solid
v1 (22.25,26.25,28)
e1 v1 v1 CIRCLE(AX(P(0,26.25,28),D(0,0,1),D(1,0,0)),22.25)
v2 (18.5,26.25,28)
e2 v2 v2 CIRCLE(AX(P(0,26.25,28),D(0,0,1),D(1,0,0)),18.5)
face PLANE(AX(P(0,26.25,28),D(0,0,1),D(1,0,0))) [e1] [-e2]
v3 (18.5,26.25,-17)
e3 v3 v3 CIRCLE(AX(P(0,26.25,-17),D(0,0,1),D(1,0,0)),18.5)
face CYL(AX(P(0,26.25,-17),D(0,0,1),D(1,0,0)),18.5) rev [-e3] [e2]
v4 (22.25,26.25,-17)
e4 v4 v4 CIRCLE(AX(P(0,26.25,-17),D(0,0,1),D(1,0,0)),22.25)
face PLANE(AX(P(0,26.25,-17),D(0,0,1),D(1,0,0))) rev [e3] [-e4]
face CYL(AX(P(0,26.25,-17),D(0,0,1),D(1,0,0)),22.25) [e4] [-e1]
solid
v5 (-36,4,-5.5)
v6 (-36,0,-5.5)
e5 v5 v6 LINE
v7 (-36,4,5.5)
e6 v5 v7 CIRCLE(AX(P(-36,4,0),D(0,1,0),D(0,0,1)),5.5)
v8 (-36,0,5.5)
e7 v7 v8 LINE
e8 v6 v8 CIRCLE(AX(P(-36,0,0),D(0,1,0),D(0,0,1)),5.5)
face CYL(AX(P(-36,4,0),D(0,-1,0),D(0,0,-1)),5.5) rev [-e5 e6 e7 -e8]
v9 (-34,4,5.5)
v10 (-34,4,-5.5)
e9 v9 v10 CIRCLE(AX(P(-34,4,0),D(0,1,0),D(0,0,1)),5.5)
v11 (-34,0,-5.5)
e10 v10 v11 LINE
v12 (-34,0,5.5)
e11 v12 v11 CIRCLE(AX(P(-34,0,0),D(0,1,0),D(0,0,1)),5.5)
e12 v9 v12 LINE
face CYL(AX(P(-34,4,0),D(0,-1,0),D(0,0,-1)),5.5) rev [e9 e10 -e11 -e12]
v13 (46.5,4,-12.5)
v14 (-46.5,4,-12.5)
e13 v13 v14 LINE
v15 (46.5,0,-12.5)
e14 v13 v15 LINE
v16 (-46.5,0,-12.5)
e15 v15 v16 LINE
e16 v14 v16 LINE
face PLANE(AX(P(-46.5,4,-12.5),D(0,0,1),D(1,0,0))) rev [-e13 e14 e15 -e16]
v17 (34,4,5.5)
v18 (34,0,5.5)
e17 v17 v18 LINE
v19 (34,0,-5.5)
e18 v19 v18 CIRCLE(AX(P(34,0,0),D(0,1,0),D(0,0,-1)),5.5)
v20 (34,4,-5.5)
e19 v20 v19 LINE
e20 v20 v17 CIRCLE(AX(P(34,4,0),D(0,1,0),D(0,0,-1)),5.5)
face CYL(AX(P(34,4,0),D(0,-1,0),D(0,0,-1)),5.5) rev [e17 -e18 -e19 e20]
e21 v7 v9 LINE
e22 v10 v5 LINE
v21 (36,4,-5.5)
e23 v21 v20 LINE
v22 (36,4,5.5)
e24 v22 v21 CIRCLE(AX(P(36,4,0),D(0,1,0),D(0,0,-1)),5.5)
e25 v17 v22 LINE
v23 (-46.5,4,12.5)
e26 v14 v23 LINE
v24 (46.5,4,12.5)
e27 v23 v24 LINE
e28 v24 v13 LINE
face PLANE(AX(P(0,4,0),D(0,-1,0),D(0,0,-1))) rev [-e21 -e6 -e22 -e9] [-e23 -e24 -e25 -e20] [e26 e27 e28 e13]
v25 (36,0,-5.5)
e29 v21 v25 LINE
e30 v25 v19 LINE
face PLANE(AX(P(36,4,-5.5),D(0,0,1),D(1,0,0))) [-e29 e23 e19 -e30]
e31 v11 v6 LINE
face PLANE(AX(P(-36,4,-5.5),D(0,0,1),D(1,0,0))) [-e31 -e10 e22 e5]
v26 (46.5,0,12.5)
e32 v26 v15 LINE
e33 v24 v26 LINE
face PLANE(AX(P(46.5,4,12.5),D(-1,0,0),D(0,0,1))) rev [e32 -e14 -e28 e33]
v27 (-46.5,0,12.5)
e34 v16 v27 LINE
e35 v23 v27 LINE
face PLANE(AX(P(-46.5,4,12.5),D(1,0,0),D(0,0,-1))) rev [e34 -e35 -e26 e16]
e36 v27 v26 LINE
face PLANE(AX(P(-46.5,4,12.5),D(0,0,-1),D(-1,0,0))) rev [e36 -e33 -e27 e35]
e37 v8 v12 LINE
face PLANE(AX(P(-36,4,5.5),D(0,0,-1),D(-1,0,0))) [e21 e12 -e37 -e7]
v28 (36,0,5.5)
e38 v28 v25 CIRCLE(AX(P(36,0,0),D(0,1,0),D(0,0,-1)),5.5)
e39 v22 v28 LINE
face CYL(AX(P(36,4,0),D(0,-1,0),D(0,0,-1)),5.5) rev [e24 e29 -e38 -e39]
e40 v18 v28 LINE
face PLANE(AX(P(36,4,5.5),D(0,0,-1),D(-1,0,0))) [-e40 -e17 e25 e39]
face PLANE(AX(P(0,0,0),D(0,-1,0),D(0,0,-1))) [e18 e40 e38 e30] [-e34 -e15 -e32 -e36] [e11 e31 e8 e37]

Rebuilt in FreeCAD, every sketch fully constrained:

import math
import FreeCAD as App
import Part
import Sketcher
from FreeCAD import Vector
Q = App.Units.Quantity

doc = App.newDocument("Part")
params = doc.addObject("Spreadsheet::Sheet", "Params")
for row, (alias, value) in enumerate([
    ("sketch1_radius", "5.5 mm"),
    ("sketch1_width", "93 mm"),
    ("sketch1_width2", "2 mm"),
    ("sketch1_height", "25 mm"),
    ("pad1_length", "4 mm"),
    ("sketch2_diameter", "37 mm"),
    ("sketch2_diameter2", "44.5 mm"),
    ("pad2_length", "15.5 mm"),
    ("pad2_length2", "29.5 mm"),
], start=1):
    params.set(f"A{row}", alias)
    params.set(f"B{row}", "=" + value)
    params.setAlias(f"B{row}", alias)

body = doc.addObject("PartDesign::Body", "Body")

# Sketch on XZ plane
sketch1 = doc.addObject("Sketcher::SketchObject", "Sketch")
body.addObject(sketch1)
sketch1.AttachmentSupport = (doc.XZ_Plane, [""])
sketch1.MapMode = "FlatFace"
sketch1.addGeometry(Part.LineSegment(Vector(-46.5, -12.5, 0), Vector(-46.5, 12.5, 0)), False)
sketch1.addGeometry(Part.LineSegment(Vector(-46.5, 12.5, 0), Vector(46.5, 12.5, 0)), False)
sketch1.addGeometry(Part.LineSegment(Vector(46.5, 12.5, 0), Vector(46.5, -12.5, 0)), False)
sketch1.addGeometry(Part.LineSegment(Vector(46.5, -12.5, 0), Vector(-46.5, -12.5, 0)), False)
sketch1.addGeometry(Part.ArcOfCircle(Part.Circle(Vector(-36, 0, 0), Vector(0, 0, 1), 5.5), math.radians(90), math.radians(270)), False)
sketch1.addGeometry(Part.LineSegment(Vector(-36, -5.5, 0), Vector(-34, -5.5, 0)), False)
sketch1.addGeometry(Part.ArcOfCircle(Part.Circle(Vector(-34, 0, 0), Vector(0, 0, 1), 5.5), math.radians(-90), math.radians(90)), False)
sketch1.addGeometry(Part.LineSegment(Vector(-34, 5.5, 0), Vector(-36, 5.5, 0)), False)
sketch1.addGeometry(Part.LineSegment(Vector(34, -5.5, 0), Vector(36, -5.5, 0)), False)
sketch1.addGeometry(Part.ArcOfCircle(Part.Circle(Vector(36, 0, 0), Vector(0, 0, 1), 5.5), math.radians(-90), math.radians(90)), False)
sketch1.addGeometry(Part.LineSegment(Vector(36, 5.5, 0), Vector(34, 5.5, 0)), False)
sketch1.addGeometry(Part.ArcOfCircle(Part.Circle(Vector(34, 0, 0), Vector(0, 0, 1), 5.5), math.radians(90), math.radians(270)), False)
sketch1.addConstraint(Sketcher.Constraint("Coincident", 0, 2, 1, 1))
sketch1.addConstraint(Sketcher.Constraint("Coincident", 1, 2, 2, 1))
sketch1.addConstraint(Sketcher.Constraint("Coincident", 2, 2, 3, 1))
sketch1.addConstraint(Sketcher.Constraint("Coincident", 3, 2, 0, 1))
sketch1.addConstraint(Sketcher.Constraint("Tangent", 4, 2, 5, 1))
sketch1.addConstraint(Sketcher.Constraint("Tangent", 5, 2, 6, 1))
sketch1.addConstraint(Sketcher.Constraint("Tangent", 6, 2, 7, 1))
sketch1.addConstraint(Sketcher.Constraint("Tangent", 7, 2, 4, 1))
sketch1.addConstraint(Sketcher.Constraint("Tangent", 8, 2, 9, 1))
sketch1.addConstraint(Sketcher.Constraint("Tangent", 9, 2, 10, 1))
sketch1.addConstraint(Sketcher.Constraint("Tangent", 10, 2, 11, 1))
sketch1.addConstraint(Sketcher.Constraint("Tangent", 11, 2, 8, 1))
sketch1.addConstraint(Sketcher.Constraint("Vertical", 0))
sketch1.addConstraint(Sketcher.Constraint("Horizontal", 1))
sketch1.addConstraint(Sketcher.Constraint("Vertical", 2))
sketch1.addConstraint(Sketcher.Constraint("Horizontal", 3))
sketch1.addConstraint(Sketcher.Constraint("Horizontal", 5))
sketch1.addConstraint(Sketcher.Constraint("Horizontal", 7))
sketch1.addConstraint(Sketcher.Constraint("Horizontal", 8))
sketch1.addConstraint(Sketcher.Constraint("Horizontal", 10))
sketch1.addConstraint(Sketcher.Constraint("Equal", 6, 9))
sketch1.addConstraint(Sketcher.Constraint("Symmetric", 4, 3, 9, 3, -1, 1))
sketch1.addConstraint(Sketcher.Constraint("Symmetric", 0, 2, 2, 2, -1, 1))
sketch1.addConstraint(Sketcher.Constraint("Symmetric", 6, 3, 11, 3, -2))
sketch1.addConstraint(Sketcher.Constraint("Radius", 4, Q("5.5 mm")))
sketch1.addConstraint(Sketcher.Constraint("DistanceX", 1, 1, 1, 2, Q("93 mm")))
sketch1.addConstraint(Sketcher.Constraint("DistanceX", 5, 1, 5, 2, Q("2 mm")))
sketch1.addConstraint(Sketcher.Constraint("DistanceY", 0, 1, 0, 2, Q("25 mm")))
sketch1.addConstraint(Sketcher.Constraint("DistanceX", 4, 3, -1, 1, Q("36 mm")))
sketch1.setExpression("Constraints[24]", "Params.sketch1_radius")
sketch1.setExpression("Constraints[25]", "Params.sketch1_width")
sketch1.setExpression("Constraints[26]", "Params.sketch1_width2")
sketch1.setExpression("Constraints[27]", "Params.sketch1_height")
pad1 = doc.addObject("PartDesign::Pad", "Pad")
body.addObject(pad1)
pad1.Profile = sketch1
pad1.setExpression("Length", "Params.pad1_length")
pad1.Reversed = True
body2 = doc.addObject("PartDesign::Body", "Body001")

# Sketch on XY plane
sketch2 = doc.addObject("Sketcher::SketchObject", "Sketch001")
body2.addObject(sketch2)
sketch2.AttachmentSupport = (doc.getObject("XY_Plane001"), [""])
sketch2.MapMode = "FlatFace"
sketch2.AttachmentOffset = App.Placement(Vector(0, 0, 12.5), App.Rotation())
sketch2.addGeometry(Part.Circle(Vector(0, 26, 0), Vector(0, 0, 1), 22), False)
sketch2.addGeometry(Part.Circle(Vector(0, 26, 0), Vector(0, 0, 1), 18), False)
sketch2.addConstraint(Sketcher.Constraint("Coincident", 1, 3, 0, 3))
sketch2.addConstraint(Sketcher.Constraint("PointOnObject", 0, 3, -2))
sketch2.addConstraint(Sketcher.Constraint("Diameter", 1, Q("37 mm")))
sketch2.addConstraint(Sketcher.Constraint("Diameter", 0, Q("44.5 mm")))
sketch2.addConstraint(Sketcher.Constraint("DistanceY", -1, 1, 0, 3, Q("26.25 mm")))
sketch2.setExpression("Constraints[2]", "Params.sketch2_diameter")
sketch2.setExpression("Constraints[3]", "Params.sketch2_diameter2")
pad2 = doc.addObject("PartDesign::Pad", "Pad001")
body2.addObject(pad2)
pad2.Profile = sketch2
pad2.Type = "TwoLengths"
pad2.setExpression("Length", "Params.pad2_length")
pad2.setExpression("Length2", "Params.pad2_length2")

doc.recompute()
